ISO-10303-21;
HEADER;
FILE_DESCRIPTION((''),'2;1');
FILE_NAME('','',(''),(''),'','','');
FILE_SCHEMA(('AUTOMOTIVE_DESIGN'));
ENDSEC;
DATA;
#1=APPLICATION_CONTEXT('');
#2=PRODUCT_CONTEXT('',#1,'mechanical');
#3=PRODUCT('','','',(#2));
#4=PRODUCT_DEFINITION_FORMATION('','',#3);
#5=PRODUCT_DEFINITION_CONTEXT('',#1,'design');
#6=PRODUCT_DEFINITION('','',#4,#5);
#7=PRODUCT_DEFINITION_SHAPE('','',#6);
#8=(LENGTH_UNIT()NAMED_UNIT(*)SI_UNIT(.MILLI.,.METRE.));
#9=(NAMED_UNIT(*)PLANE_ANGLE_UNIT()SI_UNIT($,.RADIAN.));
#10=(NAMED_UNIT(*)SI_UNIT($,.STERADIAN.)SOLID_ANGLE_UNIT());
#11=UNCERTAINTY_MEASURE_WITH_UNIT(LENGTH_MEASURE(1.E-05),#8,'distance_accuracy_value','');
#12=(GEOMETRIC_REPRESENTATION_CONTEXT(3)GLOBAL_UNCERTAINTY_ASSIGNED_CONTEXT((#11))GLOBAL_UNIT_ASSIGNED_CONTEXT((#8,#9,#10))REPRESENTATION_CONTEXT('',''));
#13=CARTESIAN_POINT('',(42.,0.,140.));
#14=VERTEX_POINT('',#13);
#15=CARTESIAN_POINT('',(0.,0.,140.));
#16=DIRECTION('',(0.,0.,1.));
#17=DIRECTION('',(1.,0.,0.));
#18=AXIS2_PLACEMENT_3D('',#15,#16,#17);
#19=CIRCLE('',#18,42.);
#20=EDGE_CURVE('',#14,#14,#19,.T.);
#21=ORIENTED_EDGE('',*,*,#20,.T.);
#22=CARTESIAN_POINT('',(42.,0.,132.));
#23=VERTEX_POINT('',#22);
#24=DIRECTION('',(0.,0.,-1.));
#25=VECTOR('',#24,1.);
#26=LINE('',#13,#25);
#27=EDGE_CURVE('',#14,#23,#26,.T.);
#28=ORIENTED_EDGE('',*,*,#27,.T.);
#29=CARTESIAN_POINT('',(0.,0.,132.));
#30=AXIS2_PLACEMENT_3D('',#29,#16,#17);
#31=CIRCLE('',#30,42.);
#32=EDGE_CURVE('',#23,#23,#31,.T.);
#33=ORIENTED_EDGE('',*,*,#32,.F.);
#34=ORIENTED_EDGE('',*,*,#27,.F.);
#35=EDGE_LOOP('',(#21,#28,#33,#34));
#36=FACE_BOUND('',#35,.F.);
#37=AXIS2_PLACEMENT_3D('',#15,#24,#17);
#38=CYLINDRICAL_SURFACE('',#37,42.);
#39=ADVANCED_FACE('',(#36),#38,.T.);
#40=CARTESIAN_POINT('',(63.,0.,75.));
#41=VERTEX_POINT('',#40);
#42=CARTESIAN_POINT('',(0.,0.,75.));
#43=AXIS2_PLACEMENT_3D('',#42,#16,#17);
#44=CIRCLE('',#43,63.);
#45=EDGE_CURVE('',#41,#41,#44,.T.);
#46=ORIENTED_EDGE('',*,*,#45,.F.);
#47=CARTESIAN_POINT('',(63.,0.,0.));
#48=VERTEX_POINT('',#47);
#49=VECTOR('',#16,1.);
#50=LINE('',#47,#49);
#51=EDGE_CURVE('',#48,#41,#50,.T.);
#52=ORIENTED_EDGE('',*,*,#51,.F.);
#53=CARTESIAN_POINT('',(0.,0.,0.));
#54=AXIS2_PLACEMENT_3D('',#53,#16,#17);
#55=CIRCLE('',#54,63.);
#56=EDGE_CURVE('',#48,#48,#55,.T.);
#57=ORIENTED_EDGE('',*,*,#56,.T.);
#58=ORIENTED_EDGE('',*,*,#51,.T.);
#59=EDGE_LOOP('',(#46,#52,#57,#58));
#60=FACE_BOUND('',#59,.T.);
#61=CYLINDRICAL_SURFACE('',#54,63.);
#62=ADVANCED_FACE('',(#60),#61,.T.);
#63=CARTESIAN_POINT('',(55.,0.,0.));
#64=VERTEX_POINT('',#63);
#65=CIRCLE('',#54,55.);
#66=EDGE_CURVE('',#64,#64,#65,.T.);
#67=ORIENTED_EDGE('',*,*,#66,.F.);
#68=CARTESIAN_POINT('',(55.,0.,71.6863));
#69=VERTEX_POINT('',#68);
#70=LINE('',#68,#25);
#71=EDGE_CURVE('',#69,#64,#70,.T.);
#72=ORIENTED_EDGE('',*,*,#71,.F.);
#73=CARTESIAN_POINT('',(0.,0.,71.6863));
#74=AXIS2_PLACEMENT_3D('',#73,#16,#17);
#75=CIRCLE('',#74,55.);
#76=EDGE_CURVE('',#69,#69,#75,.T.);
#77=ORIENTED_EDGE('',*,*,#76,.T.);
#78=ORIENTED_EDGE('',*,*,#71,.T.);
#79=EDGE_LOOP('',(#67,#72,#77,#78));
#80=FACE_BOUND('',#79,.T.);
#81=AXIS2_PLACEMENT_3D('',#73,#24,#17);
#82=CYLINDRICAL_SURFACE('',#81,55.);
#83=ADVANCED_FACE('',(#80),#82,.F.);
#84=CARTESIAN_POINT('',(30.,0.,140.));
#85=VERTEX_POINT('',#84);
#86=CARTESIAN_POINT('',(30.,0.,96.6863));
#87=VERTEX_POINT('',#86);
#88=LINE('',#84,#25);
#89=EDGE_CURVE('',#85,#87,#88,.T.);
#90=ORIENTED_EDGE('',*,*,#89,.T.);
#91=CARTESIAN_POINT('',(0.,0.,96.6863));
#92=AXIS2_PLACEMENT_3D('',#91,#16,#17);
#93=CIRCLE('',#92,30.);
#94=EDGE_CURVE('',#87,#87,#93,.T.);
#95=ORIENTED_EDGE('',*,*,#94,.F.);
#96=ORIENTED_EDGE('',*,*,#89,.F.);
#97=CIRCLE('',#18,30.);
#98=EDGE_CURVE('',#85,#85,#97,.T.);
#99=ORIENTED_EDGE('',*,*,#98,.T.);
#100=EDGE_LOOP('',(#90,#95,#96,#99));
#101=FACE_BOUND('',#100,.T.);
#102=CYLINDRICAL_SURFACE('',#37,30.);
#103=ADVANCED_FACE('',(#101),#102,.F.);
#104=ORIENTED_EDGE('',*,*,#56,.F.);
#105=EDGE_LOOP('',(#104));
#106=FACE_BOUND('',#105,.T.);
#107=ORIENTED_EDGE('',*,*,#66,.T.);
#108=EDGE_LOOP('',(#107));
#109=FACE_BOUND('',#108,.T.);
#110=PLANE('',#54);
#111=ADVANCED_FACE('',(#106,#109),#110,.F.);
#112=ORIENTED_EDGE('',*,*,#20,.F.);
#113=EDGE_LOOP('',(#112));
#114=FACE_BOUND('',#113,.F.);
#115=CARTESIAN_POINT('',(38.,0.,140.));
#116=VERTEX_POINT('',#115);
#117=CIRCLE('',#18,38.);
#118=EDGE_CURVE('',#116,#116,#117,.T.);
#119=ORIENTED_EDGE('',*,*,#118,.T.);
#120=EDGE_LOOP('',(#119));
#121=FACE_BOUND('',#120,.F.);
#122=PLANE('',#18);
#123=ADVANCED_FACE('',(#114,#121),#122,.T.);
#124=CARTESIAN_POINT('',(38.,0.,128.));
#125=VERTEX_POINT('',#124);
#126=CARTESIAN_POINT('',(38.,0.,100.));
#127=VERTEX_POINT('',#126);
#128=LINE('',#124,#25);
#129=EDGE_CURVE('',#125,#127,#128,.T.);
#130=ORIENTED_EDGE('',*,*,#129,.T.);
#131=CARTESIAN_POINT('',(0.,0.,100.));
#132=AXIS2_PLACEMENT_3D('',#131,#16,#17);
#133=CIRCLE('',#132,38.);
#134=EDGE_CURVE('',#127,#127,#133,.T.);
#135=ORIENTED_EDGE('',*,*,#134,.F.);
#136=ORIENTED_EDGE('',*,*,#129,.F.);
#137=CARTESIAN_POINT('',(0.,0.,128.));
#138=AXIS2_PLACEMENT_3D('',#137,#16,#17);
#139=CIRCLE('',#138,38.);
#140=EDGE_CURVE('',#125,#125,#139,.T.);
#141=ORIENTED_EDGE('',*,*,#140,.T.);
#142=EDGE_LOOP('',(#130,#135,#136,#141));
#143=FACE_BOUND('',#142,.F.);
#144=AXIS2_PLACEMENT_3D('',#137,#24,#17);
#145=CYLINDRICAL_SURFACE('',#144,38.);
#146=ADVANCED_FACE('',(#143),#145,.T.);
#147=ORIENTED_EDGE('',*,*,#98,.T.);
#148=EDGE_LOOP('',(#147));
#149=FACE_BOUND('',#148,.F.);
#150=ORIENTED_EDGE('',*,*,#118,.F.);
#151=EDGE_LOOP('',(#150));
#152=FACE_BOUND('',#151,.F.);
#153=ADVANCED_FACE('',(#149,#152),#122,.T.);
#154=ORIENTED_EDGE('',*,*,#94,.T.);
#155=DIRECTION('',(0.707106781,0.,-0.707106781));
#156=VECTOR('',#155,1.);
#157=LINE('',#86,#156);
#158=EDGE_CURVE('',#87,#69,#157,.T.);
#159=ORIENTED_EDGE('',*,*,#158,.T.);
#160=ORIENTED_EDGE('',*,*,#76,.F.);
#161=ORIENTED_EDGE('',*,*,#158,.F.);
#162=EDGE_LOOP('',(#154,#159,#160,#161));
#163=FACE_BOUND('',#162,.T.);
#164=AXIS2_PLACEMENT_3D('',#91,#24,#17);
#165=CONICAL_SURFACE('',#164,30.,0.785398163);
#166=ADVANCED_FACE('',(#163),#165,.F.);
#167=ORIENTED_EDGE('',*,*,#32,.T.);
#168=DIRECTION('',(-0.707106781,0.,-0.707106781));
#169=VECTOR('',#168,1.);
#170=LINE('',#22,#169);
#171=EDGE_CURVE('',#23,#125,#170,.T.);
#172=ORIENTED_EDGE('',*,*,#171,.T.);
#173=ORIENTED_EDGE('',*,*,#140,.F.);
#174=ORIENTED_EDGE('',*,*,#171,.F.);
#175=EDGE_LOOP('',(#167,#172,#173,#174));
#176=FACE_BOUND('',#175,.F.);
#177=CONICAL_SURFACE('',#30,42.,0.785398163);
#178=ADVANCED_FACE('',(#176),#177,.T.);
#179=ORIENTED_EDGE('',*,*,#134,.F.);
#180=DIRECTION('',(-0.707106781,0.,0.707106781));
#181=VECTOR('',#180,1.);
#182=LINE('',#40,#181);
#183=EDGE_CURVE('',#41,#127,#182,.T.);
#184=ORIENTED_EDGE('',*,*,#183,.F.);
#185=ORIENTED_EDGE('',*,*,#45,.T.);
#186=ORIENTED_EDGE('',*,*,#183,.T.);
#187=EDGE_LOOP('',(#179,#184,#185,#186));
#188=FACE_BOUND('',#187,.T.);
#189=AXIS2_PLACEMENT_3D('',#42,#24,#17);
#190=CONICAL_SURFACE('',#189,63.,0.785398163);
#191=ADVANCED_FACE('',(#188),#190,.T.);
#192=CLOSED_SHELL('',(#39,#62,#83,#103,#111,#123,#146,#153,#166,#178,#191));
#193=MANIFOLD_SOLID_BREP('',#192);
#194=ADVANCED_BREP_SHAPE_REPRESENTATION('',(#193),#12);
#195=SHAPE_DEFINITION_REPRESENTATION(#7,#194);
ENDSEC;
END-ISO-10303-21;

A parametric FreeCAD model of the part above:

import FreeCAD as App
import Part
import Sketcher
from FreeCAD import Vector
Q = App.Units.Quantity


def add_polygon(sketch, points):
    """Adds a closed chain of lines whose ends are joined by coincident constraints."""
    first, n = sketch.GeometryCount, len(points)
    for a, b in zip(points, points[1:] + points[:1]):
        sketch.addGeometry(Part.LineSegment(App.Vector(*a, 0), App.Vector(*b, 0)), False)
    for i in range(n):
        sketch.addConstraint(Sketcher.Constraint("Coincident", first + i, 2, first + (i + 1) % n, 1))

doc = App.newDocument("Part")
body = doc.addObject("PartDesign::Body", "Body")

sketch1 = body.newObject("Sketcher::SketchObject", "Sketch")
sketch1.AttachmentSupport = (doc.getObject("XZ_Plane"), [""])
sketch1.MapMode = "FlatFace"
add_polygon(sketch1, [(42, 132), (42, 140), (30, 140), (30, 97), (55, 72), (55, 0), (63, 0), (63, 75), (38, 100), (38, 128)])
sketch1.addConstraint([
    Sketcher.Constraint("Vertical", 0),
    Sketcher.Constraint("Horizontal", 1),
    Sketcher.Constraint("Vertical", 2),
    Sketcher.Constraint("Vertical", 4),
    Sketcher.Constraint("Horizontal", 5),
    Sketcher.Constraint("Vertical", 6),
    Sketcher.Constraint("Vertical", 8),
    Sketcher.Constraint("PointOnObject", 4, 2, -1),
    Sketcher.Constraint("Parallel", 3, 7),
    Sketcher.Constraint("Perpendicular", 7, 9),
    Sketcher.Constraint("Equal", 5, 0),
    Sketcher.Constraint("Equal", 3, 7),
    Sketcher.Constraint("DistanceX", 1, 2, 1, 1, 12.0),
    Sketcher.Constraint("DistanceX", 5, 1, 5, 2, 8.0),
    Sketcher.Constraint("DistanceY", 6, 1, 6, 2, 75.0),
    Sketcher.Constraint("DistanceY", 8, 1, 8, 2, 28.0),
    Sketcher.Constraint("Angle", 3, Q("-45 deg")),
    Sketcher.Constraint("DistanceX", -1, 1, 0, 2, 42.0),
    Sketcher.Constraint("DistanceY", -1, 1, 0, 2, 140.0),
    Sketcher.Constraint("DistanceY", 2, 2, 2, 1, 43.3137),
])
revolution = body.newObject("PartDesign::Revolution", "Revolution")
revolution.Profile = sketch1
revolution.ReferenceAxis = (sketch1, ["V_Axis"])
revolution.Angle = 360

doc.recompute()
